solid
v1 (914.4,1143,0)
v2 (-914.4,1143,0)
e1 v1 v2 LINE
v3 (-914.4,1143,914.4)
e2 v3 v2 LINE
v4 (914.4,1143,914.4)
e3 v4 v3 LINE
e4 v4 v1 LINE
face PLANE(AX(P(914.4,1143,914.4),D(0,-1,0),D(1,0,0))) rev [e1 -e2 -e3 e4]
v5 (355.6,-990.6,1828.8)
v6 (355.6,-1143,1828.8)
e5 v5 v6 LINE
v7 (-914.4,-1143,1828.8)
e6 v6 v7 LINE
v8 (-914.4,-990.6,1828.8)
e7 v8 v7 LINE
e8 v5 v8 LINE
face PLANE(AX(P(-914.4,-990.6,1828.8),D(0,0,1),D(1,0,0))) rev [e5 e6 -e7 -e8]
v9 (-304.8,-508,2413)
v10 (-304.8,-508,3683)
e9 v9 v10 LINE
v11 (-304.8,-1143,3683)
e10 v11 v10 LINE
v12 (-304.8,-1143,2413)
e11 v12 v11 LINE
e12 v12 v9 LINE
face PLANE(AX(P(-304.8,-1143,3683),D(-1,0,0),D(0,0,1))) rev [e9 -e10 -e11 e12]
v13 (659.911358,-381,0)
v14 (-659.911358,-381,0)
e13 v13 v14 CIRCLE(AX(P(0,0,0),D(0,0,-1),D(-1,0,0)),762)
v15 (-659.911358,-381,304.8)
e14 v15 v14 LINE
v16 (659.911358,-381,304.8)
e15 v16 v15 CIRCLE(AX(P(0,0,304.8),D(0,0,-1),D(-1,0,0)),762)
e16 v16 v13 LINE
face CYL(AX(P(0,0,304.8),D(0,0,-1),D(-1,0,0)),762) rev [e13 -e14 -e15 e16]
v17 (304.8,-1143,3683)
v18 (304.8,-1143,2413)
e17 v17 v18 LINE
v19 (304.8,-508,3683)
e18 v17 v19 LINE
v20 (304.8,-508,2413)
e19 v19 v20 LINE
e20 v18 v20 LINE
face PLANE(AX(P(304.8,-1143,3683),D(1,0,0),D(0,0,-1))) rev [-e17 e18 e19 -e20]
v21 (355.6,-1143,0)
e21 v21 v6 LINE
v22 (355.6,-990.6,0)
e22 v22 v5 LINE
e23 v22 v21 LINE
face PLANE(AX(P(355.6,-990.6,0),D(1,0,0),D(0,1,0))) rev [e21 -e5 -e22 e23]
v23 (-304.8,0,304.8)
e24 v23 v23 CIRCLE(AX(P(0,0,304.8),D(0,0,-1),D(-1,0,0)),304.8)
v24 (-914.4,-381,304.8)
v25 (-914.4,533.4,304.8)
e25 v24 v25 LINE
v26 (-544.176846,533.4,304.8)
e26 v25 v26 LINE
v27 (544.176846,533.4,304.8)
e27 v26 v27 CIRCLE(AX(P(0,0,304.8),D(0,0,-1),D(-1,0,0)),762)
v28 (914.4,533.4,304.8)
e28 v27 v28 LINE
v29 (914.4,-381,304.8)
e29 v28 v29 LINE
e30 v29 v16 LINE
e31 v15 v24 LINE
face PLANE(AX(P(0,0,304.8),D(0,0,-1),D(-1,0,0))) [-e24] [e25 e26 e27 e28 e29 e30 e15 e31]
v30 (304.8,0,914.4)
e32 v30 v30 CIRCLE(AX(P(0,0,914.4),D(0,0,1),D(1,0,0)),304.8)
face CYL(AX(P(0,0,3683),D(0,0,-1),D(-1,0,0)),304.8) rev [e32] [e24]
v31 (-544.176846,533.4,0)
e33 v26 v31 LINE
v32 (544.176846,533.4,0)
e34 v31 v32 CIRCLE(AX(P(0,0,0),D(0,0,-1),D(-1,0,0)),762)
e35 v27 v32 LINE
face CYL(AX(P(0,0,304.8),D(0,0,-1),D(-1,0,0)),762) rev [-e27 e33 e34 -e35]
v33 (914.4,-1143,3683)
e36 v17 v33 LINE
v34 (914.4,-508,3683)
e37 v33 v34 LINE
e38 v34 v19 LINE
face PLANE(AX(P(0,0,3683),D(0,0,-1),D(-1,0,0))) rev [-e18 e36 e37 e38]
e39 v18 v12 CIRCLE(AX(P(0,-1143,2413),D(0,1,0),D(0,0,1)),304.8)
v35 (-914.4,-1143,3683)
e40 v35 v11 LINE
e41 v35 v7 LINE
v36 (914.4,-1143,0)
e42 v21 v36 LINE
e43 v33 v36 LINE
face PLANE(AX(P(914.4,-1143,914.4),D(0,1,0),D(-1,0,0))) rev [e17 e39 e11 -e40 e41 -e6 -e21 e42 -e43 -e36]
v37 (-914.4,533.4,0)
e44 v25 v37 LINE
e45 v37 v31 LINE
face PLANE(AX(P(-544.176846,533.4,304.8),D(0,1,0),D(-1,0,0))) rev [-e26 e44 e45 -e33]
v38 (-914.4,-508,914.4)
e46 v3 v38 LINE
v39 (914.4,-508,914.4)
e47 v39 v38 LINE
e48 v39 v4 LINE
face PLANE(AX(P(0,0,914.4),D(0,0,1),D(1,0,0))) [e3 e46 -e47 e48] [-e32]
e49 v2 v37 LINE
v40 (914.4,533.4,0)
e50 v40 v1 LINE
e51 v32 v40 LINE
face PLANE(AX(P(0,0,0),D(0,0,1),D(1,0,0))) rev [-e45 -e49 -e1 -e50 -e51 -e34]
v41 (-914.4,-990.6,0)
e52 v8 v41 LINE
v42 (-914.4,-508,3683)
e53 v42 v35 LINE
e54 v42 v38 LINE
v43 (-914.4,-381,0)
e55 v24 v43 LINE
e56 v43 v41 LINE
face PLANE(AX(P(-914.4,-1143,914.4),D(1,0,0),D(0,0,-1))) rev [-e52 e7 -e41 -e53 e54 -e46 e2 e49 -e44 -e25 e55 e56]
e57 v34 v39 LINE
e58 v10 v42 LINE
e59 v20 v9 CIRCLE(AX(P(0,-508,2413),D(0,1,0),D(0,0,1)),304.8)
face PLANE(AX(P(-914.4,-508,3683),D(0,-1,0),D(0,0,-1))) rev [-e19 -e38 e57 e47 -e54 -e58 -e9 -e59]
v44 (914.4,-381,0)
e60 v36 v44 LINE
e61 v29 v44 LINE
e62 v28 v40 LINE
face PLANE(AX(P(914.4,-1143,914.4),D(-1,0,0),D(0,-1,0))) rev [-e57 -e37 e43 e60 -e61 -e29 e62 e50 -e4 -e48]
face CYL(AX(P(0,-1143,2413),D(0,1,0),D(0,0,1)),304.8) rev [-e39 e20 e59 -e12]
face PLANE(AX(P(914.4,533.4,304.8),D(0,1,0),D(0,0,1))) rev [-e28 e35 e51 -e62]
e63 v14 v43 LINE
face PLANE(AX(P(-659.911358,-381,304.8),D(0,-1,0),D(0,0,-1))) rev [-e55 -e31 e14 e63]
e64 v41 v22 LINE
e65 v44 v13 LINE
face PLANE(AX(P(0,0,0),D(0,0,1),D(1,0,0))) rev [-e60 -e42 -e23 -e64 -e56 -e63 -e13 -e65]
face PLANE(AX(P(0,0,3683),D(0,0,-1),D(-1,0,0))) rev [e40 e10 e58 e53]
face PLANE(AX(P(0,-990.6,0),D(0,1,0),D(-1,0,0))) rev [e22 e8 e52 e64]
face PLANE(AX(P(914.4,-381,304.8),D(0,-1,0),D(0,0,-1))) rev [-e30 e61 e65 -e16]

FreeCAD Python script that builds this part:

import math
import FreeCAD as App
import Part
import Sketcher
from FreeCAD import Vector
Q = App.Units.Quantity

doc = App.newDocument("Part")
body = doc.addObject("PartDesign::Body", "Body")

# Sketch on XY plane
sketch1 = body.newObject("Sketcher::SketchObject", "Sketch")
sketch1.AttachmentSupport = (doc.getObject("XY_Plane"), [""])
sketch1.MapMode = "FlatFace"
sketch1.addGeometry([
    Part.LineSegment(Vector(-914.4, 1143, 0), Vector(-914.4, -1143, 0)),
    Part.LineSegment(Vector(-914.4, -1143, 0), Vector(914.4, -1143, 0)),
    Part.LineSegment(Vector(914.4, -1143, 0), Vector(914.4, 1143, 0)),
    Part.LineSegment(Vector(914.4, 1143, 0), Vector(-914.4, 1143, 0)),
], False)
sketch1.addConstraint([
    Sketcher.Constraint("Coincident", 0, 2, 1, 1),
    Sketcher.Constraint("Coincident", 1, 2, 2, 1),
    Sketcher.Constraint("Coincident", 2, 2, 3, 1),
    Sketcher.Constraint("Coincident", 3, 2, 0, 1),
    Sketcher.Constraint("Vertical", 0),
    Sketcher.Constraint("Horizontal", 1),
    Sketcher.Constraint("Vertical", 2),
    Sketcher.Constraint("Horizontal", 3),
    Sketcher.Constraint("Symmetric", 0, 2, 2, 2, -1, 1),
    Sketcher.Constraint("DistanceX", 1, 1, 1, 2, Q("72 in")),
    Sketcher.Constraint("DistanceY", 0, 2, 0, 1, Q("90 in")),
])
pad1 = body.newObject("PartDesign::Pad", "Pad")
pad1.Profile = sketch1
pad1.Length = Q("36 in")

# Sketch on XY plane
sketch2 = body.newObject("Sketcher::SketchObject", "Sketch001")
sketch2.AttachmentSupport = (doc.getObject("XY_Plane"), [""])
sketch2.MapMode = "FlatFace"
sketch2.AttachmentOffset = App.Placement(Vector(0, 0, 36 * 25.4), App.Rotation())
sketch2.addGeometry([
    Part.LineSegment(Vector(-914.4, -508, 0), Vector(-914.4, -1143, 0)),
    Part.LineSegment(Vector(-914.4, -1143, 0), Vector(914.4, -1143, 0)),
    Part.LineSegment(Vector(914.4, -1143, 0), Vector(914.4, -508, 0)),
    Part.LineSegment(Vector(914.4, -508, 0), Vector(-914.4, -508, 0)),
], False)
sketch2.addConstraint([
    Sketcher.Constraint("Coincident", 0, 2, 1, 1),
    Sketcher.Constraint("Coincident", 1, 2, 2, 1),
    Sketcher.Constraint("Coincident", 2, 2, 3, 1),
    Sketcher.Constraint("Coincident", 3, 2, 0, 1),
    Sketcher.Constraint("Vertical", 0),
    Sketcher.Constraint("Horizontal", 1),
    Sketcher.Constraint("Vertical", 2),
    Sketcher.Constraint("Horizontal", 3),
    Sketcher.Constraint("DistanceX", 1, 1, 1, 2, Q("72 in")),
    Sketcher.Constraint("DistanceY", 0, 2, 0, 1, Q("25 in")),
    Sketcher.Constraint("DistanceX", 0, 2, -1, 1, Q("36 in")),
    Sketcher.Constraint("DistanceY", 0, 2, -1, 1, Q("45 in")),
])
pad2 = body.newObject("PartDesign::Pad", "Pad001")
pad2.Profile = sketch2
pad2.Length = Q("109 in")

# Sketch on XZ plane
sketch3 = body.newObject("Sketcher::SketchObject", "Sketch002")
sketch3.AttachmentSupport = (doc.getObject("XZ_Plane"), [""])
sketch3.MapMode = "FlatFace"
sketch3.AttachmentOffset = App.Placement(Vector(0, 0, 20 * 25.4), App.Rotation())
sketch3.addGeometry([
    Part.LineSegment(Vector(304.8, 3683, 0), Vector(304.8, 2413, 0)),
    Part.ArcOfCircle(Part.Circle(Vector(0, 2413, 0), Vector(0, 0, 1), 304.8), math.radians(180), math.radians(360)),
    Part.LineSegment(Vector(-304.8, 2413, 0), Vector(-304.8, 3683, 0)),
    Part.LineSegment(Vector(-304.8, 3683, 0), Vector(304.8, 3683, 0)),
], False)
sketch3.addConstraint([
    Sketcher.Constraint("Tangent", 0, 2, 1, 2),
    Sketcher.Constraint("Tangent", 1, 1, 2, 1),
    Sketcher.Constraint("Coincident", 2, 2, 3, 1),
    Sketcher.Constraint("Coincident", 3, 2, 0, 1),
    Sketcher.Constraint("Vertical", 0),
    Sketcher.Constraint("Vertical", 2),
    Sketcher.Constraint("Horizontal", 3),
    Sketcher.Constraint("PointOnObject", 1, 3, -2),
    Sketcher.Constraint("Radius", 1, Q("12 in")),
    Sketcher.Constraint("DistanceY", 0, 2, 0, 1, Q("50 in")),
    Sketcher.Constraint("DistanceY", -1, 1, 1, 3, Q("95 in")),
])
pocket1 = body.newObject("PartDesign::Pocket", "Pocket")
pocket1.Profile = sketch3
pocket1.Type = "ThroughAll"
pocket1.Reversed = True

# Sketch on XZ plane
sketch4 = body.newObject("Sketcher::SketchObject", "Sketch003")
sketch4.AttachmentSupport = (doc.getObject("XZ_Plane"), [""])
sketch4.MapMode = "FlatFace"
sketch4.AttachmentOffset = App.Placement(Vector(0, 0, 45 * 25.4), App.Rotation())
sketch4.addGeometry([
    Part.LineSegment(Vector(-914.4, 1828.8, 0), Vector(-914.4, 0, 0)),
    Part.LineSegment(Vector(-914.4, 0, 0), Vector(355.6, 0, 0)),
    Part.LineSegment(Vector(355.6, 0, 0), Vector(355.6, 1828.8, 0)),
    Part.LineSegment(Vector(355.6, 1828.8, 0), Vector(-914.4, 1828.8, 0)),
], False)
sketch4.addConstraint([
    Sketcher.Constraint("Coincident", 0, 2, 1, 1),
    Sketcher.Constraint("Coincident", 1, 2, 2, 1),
    Sketcher.Constraint("Coincident", 2, 2, 3, 1),
    Sketcher.Constraint("Coincident", 3, 2, 0, 1),
    Sketcher.Constraint("Vertical", 0),
    Sketcher.Constraint("Horizontal", 1),
    Sketcher.Constraint("Vertical", 2),
    Sketcher.Constraint("Horizontal", 3),
    Sketcher.Constraint("PointOnObject", 0, 2, -1),
    Sketcher.Constraint("DistanceX", 1, 1, 1, 2, Q("50 in")),
    Sketcher.Constraint("DistanceY", 0, 2, 0, 1, Q("72 in")),
    Sketcher.Constraint("DistanceX", 0, 2, -1, 1, Q("36 in")),
])
pocket2 = body.newObject("PartDesign::Pocket", "Pocket001")
pocket2.Profile = sketch4
pocket2.Length = Q("6 in")

# Sketch on XY plane
sketch5 = body.newObject("Sketcher::SketchObject", "Sketch004")
sketch5.AttachmentSupport = (doc.getObject("XY_Plane"), [""])
sketch5.MapMode = "FlatFace"
sketch5.addGeometry([
    Part.LineSegment(Vector(544.176846, 533.4, 0), Vector(914.4, 533.4, 0)),  # 0
    Part.LineSegment(Vector(914.4, 533.4, 0), Vector(914.4, -381, 0)),  # 1
    Part.LineSegment(Vector(914.4, -381, 0), Vector(659.911358, -381, 0)),  # 2
    Part.ArcOfCircle(Part.Circle(Vector(0, 0, 0), Vector(0, 0, 1), 762), math.radians(-150), math.radians(-30)),  # 3
    Part.LineSegment(Vector(-659.911358, -381, 0), Vector(-914.4, -381, 0)),  # 4
    Part.LineSegment(Vector(-914.4, -381, 0), Vector(-914.4, 533.4, 0)),  # 5
    Part.LineSegment(Vector(-914.4, 533.4, 0), Vector(-544.176846, 533.4, 0)),  # 6
    Part.ArcOfCircle(Part.Circle(Vector(0, 0, 0), Vector(0, 0, 1), 762), math.radians(44.427004), math.radians(135.572996)),  # 7
], False)
sketch5.addConstraint([
    Sketcher.Constraint("Coincident", 0, 2, 1, 1),
    Sketcher.Constraint("Coincident", 1, 2, 2, 1),
    Sketcher.Constraint("Coincident", 2, 2, 3, 2),
    Sketcher.Constraint("Coincident", 3, 1, 4, 1),
    Sketcher.Constraint("Coincident", 4, 2, 5, 1),
    Sketcher.Constraint("Coincident", 5, 2, 6, 1),
    Sketcher.Constraint("Coincident", 6, 2, 7, 2),
    Sketcher.Constraint("Coincident", 7, 1, 0, 1),
    Sketcher.Constraint("Horizontal", 0),
    Sketcher.Constraint("Vertical", 1),
    Sketcher.Constraint("Horizontal", 2),
    Sketcher.Constraint("Horizontal", 4),
    Sketcher.Constraint("Vertical", 5),
    Sketcher.Constraint("Horizontal", 6),
    Sketcher.Constraint("Coincident", 3, 3, -1, 1),
    Sketcher.Constraint("Coincident", 7, 3, -1, 1),
    Sketcher.Constraint("Equal", 3, 7),
    Sketcher.Constraint("Symmetric", 1, 2, 4, 2, -2),
    Sketcher.Constraint("Horizontal", 0, 2, 5, 2),
    Sketcher.Constraint("Radius", 3, Q("30 in")),
    Sketcher.Constraint("DistanceY", 1, 2, 1, 1, Q("36 in")),
    Sketcher.Constraint("DistanceX", -1, 1, 0, 2, Q("36 in")),
    Sketcher.Constraint("DistanceY", -1, 1, 0, 2, Q("21 in")),
])
pocket3 = body.newObject("PartDesign::Pocket", "Pocket002")
pocket3.Profile = sketch5
pocket3.Length = Q("12 in")
pocket3.Reversed = True

# Sketch on XY plane
sketch6 = body.newObject("Sketcher::SketchObject", "Sketch005")
sketch6.AttachmentSupport = (doc.getObject("XY_Plane"), [""])
sketch6.MapMode = "FlatFace"
sketch6.AttachmentOffset = App.Placement(Vector(0, 0, 12 * 25.4), App.Rotation())
sketch6.addGeometry(Part.Circle(Vector(0, 0, 0), Vector(0, 0, 1), 304.8), False)
sketch6.addConstraint([
    Sketcher.Constraint("Coincident", 0, 3, -1, 1),
    Sketcher.Constraint("Diameter", 0, Q("24 in")),
])
pocket4 = body.newObject("PartDesign::Pocket", "Pocket003")
pocket4.Profile = sketch6
pocket4.Type = "ThroughAll"
pocket4.Reversed = True

doc.recompute()
